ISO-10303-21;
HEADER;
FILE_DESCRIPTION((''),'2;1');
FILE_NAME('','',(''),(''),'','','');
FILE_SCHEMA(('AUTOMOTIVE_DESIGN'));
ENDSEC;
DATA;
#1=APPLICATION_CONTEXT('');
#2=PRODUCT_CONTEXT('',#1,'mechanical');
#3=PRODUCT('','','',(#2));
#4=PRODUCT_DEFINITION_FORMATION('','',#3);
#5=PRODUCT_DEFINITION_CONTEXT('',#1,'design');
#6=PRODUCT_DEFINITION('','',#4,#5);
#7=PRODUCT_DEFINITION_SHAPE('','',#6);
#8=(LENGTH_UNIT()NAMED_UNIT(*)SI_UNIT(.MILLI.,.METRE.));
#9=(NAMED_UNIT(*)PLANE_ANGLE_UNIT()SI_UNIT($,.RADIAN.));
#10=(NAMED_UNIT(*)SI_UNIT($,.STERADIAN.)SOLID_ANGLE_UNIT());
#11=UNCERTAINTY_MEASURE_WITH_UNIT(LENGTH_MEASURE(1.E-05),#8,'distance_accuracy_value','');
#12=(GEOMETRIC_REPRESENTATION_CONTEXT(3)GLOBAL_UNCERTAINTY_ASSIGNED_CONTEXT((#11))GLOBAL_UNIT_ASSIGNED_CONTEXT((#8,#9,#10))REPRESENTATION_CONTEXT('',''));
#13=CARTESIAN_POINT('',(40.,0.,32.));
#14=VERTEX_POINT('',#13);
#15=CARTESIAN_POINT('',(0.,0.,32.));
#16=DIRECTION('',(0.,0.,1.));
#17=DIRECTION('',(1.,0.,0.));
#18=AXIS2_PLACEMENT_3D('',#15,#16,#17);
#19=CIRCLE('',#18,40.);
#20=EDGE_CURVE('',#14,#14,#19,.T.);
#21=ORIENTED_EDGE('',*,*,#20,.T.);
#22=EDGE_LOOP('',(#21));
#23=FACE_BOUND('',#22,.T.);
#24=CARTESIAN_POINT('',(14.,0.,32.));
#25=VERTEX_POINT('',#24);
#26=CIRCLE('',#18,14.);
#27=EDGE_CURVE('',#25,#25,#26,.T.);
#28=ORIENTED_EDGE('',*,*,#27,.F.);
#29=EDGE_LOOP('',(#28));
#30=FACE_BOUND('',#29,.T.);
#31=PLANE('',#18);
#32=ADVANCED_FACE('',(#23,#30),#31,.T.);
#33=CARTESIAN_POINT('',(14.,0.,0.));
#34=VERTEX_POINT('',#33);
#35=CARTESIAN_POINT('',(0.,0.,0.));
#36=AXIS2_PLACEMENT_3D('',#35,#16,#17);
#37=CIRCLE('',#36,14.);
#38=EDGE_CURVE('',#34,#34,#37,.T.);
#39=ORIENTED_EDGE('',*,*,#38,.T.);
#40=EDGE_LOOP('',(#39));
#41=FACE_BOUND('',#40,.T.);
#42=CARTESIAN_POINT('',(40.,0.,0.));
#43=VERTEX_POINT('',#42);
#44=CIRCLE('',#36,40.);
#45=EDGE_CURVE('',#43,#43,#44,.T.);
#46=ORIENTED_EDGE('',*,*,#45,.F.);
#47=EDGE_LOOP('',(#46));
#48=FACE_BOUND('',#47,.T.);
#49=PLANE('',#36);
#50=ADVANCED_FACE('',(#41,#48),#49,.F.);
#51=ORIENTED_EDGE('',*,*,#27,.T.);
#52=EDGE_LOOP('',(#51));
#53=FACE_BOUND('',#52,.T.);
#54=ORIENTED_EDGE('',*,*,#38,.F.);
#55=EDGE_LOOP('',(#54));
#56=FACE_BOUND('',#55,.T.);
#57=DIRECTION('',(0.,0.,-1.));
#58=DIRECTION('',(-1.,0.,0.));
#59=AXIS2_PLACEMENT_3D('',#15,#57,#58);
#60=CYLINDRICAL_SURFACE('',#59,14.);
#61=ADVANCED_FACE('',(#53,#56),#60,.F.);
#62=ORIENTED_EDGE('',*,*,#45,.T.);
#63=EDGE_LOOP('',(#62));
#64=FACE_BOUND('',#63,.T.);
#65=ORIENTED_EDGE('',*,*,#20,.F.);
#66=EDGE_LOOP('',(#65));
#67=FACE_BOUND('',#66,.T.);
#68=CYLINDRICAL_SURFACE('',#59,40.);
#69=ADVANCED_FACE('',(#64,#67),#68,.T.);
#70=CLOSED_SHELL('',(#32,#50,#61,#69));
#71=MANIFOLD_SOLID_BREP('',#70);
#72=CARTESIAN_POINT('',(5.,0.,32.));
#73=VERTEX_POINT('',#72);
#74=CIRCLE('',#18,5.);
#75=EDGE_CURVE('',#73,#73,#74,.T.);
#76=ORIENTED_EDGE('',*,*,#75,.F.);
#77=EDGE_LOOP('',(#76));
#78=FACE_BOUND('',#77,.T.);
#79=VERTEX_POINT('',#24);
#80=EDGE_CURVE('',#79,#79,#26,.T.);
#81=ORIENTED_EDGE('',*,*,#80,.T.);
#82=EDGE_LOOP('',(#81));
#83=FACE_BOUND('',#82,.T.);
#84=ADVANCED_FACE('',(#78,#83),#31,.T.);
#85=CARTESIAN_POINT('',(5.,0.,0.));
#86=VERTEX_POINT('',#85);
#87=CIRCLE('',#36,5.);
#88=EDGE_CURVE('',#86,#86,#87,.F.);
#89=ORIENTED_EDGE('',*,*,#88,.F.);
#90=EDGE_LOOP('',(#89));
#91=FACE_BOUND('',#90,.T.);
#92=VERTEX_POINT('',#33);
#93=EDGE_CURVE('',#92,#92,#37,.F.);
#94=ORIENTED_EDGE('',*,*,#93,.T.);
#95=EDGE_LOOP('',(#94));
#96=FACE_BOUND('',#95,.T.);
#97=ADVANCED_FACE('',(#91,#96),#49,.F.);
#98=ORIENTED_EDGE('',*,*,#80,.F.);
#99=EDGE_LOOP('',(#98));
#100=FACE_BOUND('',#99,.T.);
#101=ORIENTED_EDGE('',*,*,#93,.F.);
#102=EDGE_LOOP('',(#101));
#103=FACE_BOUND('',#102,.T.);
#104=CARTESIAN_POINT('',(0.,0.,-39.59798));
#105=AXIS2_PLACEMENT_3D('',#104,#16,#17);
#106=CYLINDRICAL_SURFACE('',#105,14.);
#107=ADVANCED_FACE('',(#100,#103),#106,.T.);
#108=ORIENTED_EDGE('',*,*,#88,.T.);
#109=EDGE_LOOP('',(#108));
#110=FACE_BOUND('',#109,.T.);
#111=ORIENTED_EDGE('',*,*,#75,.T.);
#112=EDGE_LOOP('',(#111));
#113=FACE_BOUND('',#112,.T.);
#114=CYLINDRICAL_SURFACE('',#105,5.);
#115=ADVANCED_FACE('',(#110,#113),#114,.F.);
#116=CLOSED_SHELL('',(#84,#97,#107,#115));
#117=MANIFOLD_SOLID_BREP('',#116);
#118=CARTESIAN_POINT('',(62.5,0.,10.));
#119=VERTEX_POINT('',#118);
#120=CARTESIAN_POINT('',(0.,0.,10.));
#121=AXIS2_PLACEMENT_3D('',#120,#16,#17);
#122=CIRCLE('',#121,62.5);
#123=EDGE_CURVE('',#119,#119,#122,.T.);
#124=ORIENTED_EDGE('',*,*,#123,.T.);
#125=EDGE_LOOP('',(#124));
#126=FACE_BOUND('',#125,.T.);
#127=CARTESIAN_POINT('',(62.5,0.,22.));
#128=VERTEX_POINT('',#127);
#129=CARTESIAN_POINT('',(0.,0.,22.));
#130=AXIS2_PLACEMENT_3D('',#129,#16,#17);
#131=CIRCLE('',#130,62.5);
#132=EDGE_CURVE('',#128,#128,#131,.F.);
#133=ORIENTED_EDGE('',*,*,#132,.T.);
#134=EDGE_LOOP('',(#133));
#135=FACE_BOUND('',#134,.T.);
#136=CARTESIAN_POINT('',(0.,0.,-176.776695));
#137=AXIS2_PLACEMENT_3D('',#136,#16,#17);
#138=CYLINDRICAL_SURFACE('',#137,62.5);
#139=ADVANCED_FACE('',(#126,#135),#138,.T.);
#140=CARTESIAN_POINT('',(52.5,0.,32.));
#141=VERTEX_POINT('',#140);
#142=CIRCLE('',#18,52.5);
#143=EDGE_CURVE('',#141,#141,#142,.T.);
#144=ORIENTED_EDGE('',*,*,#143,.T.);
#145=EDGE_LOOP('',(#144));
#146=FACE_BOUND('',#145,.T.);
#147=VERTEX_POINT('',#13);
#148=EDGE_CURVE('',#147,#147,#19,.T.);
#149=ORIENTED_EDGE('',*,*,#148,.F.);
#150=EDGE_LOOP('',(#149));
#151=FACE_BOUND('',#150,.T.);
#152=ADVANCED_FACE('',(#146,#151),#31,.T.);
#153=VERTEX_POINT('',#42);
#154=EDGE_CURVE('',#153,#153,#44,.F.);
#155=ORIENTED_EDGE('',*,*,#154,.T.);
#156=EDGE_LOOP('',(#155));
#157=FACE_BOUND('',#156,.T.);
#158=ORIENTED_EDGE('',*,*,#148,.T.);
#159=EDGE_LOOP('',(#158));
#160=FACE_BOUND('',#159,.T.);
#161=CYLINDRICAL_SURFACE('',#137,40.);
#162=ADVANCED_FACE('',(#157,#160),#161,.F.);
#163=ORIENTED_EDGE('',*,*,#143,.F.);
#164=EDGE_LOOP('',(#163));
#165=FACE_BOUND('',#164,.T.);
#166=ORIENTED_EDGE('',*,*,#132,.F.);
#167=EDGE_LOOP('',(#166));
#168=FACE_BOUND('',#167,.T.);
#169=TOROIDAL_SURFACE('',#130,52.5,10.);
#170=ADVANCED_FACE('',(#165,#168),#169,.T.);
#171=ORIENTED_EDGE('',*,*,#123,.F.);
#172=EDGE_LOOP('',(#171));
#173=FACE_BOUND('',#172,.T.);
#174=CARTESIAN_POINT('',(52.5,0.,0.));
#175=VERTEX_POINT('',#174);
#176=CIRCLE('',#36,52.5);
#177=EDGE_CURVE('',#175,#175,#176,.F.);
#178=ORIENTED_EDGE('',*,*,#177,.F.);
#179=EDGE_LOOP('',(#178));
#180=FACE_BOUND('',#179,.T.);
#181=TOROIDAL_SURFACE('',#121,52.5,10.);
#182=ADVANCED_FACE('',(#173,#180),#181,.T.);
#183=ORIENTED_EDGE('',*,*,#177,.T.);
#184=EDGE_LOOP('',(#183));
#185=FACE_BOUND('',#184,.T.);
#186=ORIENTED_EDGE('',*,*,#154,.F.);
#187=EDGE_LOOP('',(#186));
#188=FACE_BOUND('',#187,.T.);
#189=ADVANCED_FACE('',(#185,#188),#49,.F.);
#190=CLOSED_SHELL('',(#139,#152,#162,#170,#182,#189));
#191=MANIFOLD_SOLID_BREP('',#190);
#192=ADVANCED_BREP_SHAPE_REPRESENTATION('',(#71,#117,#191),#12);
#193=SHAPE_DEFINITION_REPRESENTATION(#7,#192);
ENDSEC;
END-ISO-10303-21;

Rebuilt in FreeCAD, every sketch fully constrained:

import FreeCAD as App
import Part
import Sketcher
Q = App.Units.Quantity


def edges_at(feature, points):
    """Names of the edges that pass closest to the given points."""
    edges = feature.Shape.Edges
    near = lambda p: min(range(len(edges)), key=lambda i: edges[i].distToShape(Part.Vertex(*p))[0])
    return sorted({f"Edge{near(p) + 1}" for p in points})

doc = App.newDocument("Part")
body = doc.addObject("PartDesign::Body", "Body")

sketch1 = body.newObject("Sketcher::SketchObject", "Sketch")
sketch1.AttachmentSupport = (doc.getObject("XY_Plane"), [""])
sketch1.MapMode = "FlatFace"
sketch1.addGeometry(Part.Circle(App.Vector(0, 0, 0), App.Vector(0, 0, 1), 40), False)
sketch1.addGeometry(Part.Circle(App.Vector(0, 0, 0), App.Vector(0, 0, 1), 14), False)
sketch1.addConstraint(Sketcher.Constraint("Coincident", 0, 3, -1, 1))
sketch1.addConstraint(Sketcher.Constraint("Coincident", 1, 3, -1, 1))
sketch1.addConstraint(Sketcher.Constraint("Diameter", 0, Q("80 mm")))
sketch1.addConstraint(Sketcher.Constraint("Diameter", 1, Q("28 mm")))
pad1 = body.newObject("PartDesign::Pad", "Pad")
pad1.Profile = sketch1
pad1.Length = 32
body2 = doc.addObject("PartDesign::Body", "Body001")

sketch2 = body2.newObject("Sketcher::SketchObject", "Sketch001")
sketch2.AttachmentSupport = (doc.getObject("XY_Plane001"), [""])
sketch2.MapMode = "FlatFace"
sketch2.AttachmentOffset = App.Placement(App.Vector(0, 0, 32), App.Rotation())
sketch2.addGeometry(Part.Circle(App.Vector(0, 0, 0), App.Vector(0, 0, 1), 62), False)
sketch2.addGeometry(Part.Circle(App.Vector(0, 0, 0), App.Vector(0, 0, 1), 40), False)
sketch2.addConstraint(Sketcher.Constraint("Coincident", 0, 3, -1, 1))
sketch2.addConstraint(Sketcher.Constraint("Coincident", 1, 3, -1, 1))
sketch2.addConstraint(Sketcher.Constraint("Diameter", 0, Q("125 mm")))
sketch2.addConstraint(Sketcher.Constraint("Diameter", 1, Q("80 mm")))
pad2 = body2.newObject("PartDesign::Pad", "Pad001")
pad2.Profile = sketch2
pad2.Length = 32
pad2.Reversed = True
doc.recompute()

fillet = body2.newObject("PartDesign::Fillet", "Fillet")
fillet.Base = (pad2, edges_at(pad2, [(-62.5, 0, 32), (-62.5, 0, 0)]))
fillet.Radius = 10
body3 = doc.addObject("PartDesign::Body", "Body002")

sketch3 = body3.newObject("Sketcher::SketchObject", "Sketch002")
sketch3.AttachmentSupport = (doc.getObject("XY_Plane002"), [""])
sketch3.MapMode = "FlatFace"
sketch3.AttachmentOffset = App.Placement(App.Vector(0, 0, 32), App.Rotation())
sketch3.addGeometry(Part.Circle(App.Vector(0, 0, 0), App.Vector(0, 0, 1), 14), False)
sketch3.addGeometry(Part.Circle(App.Vector(0, 0, 0), App.Vector(0, 0, 1), 5), False)
sketch3.addConstraint(Sketcher.Constraint("Coincident", 0, 3, -1, 1))
sketch3.addConstraint(Sketcher.Constraint("Coincident", 1, 3, -1, 1))
sketch3.addConstraint(Sketcher.Constraint("Diameter", 0, Q("28 mm")))
sketch3.addConstraint(Sketcher.Constraint("Diameter", 1, Q("10 mm")))
pad3 = body3.newObject("PartDesign::Pad", "Pad002")
pad3.Profile = sketch3
pad3.Length = 32
pad3.Reversed = True

doc.recompute()
